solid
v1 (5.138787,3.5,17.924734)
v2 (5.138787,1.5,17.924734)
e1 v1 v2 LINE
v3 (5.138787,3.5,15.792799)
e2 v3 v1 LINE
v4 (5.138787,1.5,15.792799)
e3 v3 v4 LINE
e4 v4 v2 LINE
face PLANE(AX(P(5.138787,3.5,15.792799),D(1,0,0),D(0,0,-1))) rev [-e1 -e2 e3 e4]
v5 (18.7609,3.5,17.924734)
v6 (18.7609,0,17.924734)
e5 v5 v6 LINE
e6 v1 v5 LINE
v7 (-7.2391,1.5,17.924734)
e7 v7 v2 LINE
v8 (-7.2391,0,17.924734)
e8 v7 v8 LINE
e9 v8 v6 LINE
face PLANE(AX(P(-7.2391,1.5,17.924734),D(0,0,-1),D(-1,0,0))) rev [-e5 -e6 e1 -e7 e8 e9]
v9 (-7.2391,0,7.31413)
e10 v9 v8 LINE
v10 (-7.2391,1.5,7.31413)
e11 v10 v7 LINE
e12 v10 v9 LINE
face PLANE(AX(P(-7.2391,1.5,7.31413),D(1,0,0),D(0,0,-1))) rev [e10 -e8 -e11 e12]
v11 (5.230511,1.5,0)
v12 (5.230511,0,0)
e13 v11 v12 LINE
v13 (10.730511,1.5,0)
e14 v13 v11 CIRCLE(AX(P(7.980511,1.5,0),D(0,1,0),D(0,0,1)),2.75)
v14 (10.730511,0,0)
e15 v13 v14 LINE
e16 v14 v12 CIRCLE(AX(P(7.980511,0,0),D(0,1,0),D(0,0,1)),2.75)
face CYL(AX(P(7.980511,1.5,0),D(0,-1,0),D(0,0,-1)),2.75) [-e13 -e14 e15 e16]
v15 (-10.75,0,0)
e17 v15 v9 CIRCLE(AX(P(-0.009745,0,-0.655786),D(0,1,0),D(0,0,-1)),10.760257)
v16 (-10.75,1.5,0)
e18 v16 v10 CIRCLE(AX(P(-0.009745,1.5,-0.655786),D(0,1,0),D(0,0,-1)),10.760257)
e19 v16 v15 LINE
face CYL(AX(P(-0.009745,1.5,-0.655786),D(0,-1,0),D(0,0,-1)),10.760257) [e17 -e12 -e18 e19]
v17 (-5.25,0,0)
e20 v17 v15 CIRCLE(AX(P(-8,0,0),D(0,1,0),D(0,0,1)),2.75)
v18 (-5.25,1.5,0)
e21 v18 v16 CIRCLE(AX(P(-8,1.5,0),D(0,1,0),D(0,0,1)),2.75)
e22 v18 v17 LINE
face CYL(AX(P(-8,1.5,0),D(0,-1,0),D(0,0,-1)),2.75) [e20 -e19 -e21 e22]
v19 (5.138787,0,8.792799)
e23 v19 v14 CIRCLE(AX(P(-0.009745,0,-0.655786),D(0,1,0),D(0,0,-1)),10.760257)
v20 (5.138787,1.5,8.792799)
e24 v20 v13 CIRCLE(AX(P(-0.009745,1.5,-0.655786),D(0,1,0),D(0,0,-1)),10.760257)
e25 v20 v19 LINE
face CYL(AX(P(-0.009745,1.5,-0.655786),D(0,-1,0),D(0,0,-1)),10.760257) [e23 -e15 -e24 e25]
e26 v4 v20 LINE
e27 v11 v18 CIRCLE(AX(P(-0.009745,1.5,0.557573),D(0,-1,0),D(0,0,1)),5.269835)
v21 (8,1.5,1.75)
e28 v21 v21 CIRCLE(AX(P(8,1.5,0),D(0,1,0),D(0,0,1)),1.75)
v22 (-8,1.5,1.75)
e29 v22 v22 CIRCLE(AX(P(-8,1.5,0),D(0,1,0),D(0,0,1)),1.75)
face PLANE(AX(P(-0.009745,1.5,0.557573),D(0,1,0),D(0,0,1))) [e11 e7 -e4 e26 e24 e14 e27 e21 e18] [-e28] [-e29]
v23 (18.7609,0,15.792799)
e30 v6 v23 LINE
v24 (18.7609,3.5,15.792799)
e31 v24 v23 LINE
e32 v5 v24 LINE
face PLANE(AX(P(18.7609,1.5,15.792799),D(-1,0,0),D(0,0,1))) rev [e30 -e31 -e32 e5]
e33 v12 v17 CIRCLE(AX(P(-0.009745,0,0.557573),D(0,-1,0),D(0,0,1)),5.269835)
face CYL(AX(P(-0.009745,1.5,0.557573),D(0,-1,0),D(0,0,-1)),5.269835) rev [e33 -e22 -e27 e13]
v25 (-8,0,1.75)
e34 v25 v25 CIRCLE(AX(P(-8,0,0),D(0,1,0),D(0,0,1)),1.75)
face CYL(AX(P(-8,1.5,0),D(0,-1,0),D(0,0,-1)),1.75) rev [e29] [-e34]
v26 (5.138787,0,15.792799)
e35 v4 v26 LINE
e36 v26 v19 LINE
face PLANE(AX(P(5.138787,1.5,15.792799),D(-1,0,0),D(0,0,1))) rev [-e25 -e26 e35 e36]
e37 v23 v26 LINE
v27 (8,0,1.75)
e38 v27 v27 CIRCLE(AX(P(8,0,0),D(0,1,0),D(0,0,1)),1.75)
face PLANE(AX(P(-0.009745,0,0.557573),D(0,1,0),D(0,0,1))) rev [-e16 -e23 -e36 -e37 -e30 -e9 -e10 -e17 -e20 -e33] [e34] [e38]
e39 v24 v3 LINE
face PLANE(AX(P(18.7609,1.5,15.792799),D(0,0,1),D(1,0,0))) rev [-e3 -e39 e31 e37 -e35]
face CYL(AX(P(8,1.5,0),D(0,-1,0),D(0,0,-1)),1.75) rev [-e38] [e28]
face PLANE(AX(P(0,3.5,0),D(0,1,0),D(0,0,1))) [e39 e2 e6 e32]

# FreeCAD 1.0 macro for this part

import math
import FreeCAD as App
import Part
import Sketcher


def add_polygon(sketch, points):
    """Adds a closed chain of lines whose ends are joined by coincident constraints."""
    first, n = sketch.GeometryCount, len(points)
    for a, b in zip(points, points[1:] + points[:1]):
        sketch.addGeometry(Part.LineSegment(App.Vector(*a, 0), App.Vector(*b, 0)), False)
    for i in range(n):
        sketch.addConstraint(Sketcher.Constraint("Coincident", first + i, 2, first + (i + 1) % n, 1))

doc = App.newDocument("Part")
body = doc.addObject("PartDesign::Body", "Body")

# Sketch on XZ plane
sketch1 = doc.addObject("Sketcher::SketchObject", "Sketch")
body.addObject(sketch1)
sketch1.AttachmentSupport = (doc.XZ_Plane, [""])
sketch1.MapMode = "FlatFace"
sketch1.addGeometry([
    Part.LineSegment(App.Vector(-7.2, 7.3, 0), App.Vector(-7.2, 17.9, 0)),  # 0
    Part.LineSegment(App.Vector(-7.2, 17.9, 0), App.Vector(18.8, 17.9, 0)),  # 1
    Part.LineSegment(App.Vector(18.8, 17.9, 0), App.Vector(18.8, 15.8, 0)),  # 2
    Part.LineSegment(App.Vector(18.8, 15.8, 0), App.Vector(5.1, 15.8, 0)),  # 3
    Part.LineSegment(App.Vector(5.1, 15.8, 0), App.Vector(5.1, 8.8, 0)),  # 4
    Part.ArcOfCircle(Part.Circle(App.Vector(0, -0.7, 0), App.Vector(0, 0, 1), 10.8), math.radians(3), math.radians(61)),  # 5
    Part.ArcOfCircle(Part.Circle(App.Vector(8, 0, 0), App.Vector(0, 0, 1), 2.8), math.radians(180), math.radians(360)),  # 6
    Part.ArcOfCircle(Part.Circle(App.Vector(0, 0.6, 0), App.Vector(0, 0, 1), 5.3), math.radians(-6), math.radians(186)),  # 7
    Part.ArcOfCircle(Part.Circle(App.Vector(-8, 0, 0), App.Vector(0, 0, 1), 2.8), math.radians(180), math.radians(360)),  # 8
    Part.ArcOfCircle(Part.Circle(App.Vector(0, -0.7, 0), App.Vector(0, 0, 1), 10.8), math.radians(132), math.radians(177)),  # 9
    Part.Circle(App.Vector(-8, 0, 0), App.Vector(0, 0, 1), 1.8),  # 10
    Part.Circle(App.Vector(8, 0, 0), App.Vector(0, 0, 1), 1.8),  # 11
], False)
sketch1.addConstraint([
    Sketcher.Constraint("Coincident", 0, 2, 1, 1),
    Sketcher.Constraint("Coincident", 1, 2, 2, 1),
    Sketcher.Constraint("Coincident", 2, 2, 3, 1),
    Sketcher.Constraint("Coincident", 3, 2, 4, 1),
    Sketcher.Constraint("Coincident", 4, 2, 5, 2),
    Sketcher.Constraint("Coincident", 5, 1, 6, 2),
    Sketcher.Constraint("Coincident", 6, 1, 7, 1),
    Sketcher.Constraint("Coincident", 7, 2, 8, 2),
    Sketcher.Constraint("Coincident", 8, 1, 9, 2),
    Sketcher.Constraint("Coincident", 9, 1, 0, 1),
    Sketcher.Constraint("Vertical", 0),
    Sketcher.Constraint("Horizontal", 1),
    Sketcher.Constraint("Vertical", 2),
    Sketcher.Constraint("Horizontal", 3),
    Sketcher.Constraint("Vertical", 4),
    Sketcher.Constraint("Coincident", 9, 3, 5, 3),
    Sketcher.Constraint("Coincident", 10, 3, 8, 3),
    Sketcher.Constraint("Equal", 6, 8),
    Sketcher.Constraint("Equal", 5, 9),
    Sketcher.Constraint("Equal", 10, 11),
    Sketcher.Constraint("Symmetric", 8, 3, 11, 3, -1, 1),
    Sketcher.Constraint("PointOnObject", 6, 3, -1),
    Sketcher.Constraint("PointOnObject", 8, 3, -1),
    Sketcher.Constraint("PointOnObject", 5, 1, -1),
    Sketcher.Constraint("PointOnObject", 6, 1, -1),
    Sketcher.Constraint("PointOnObject", 7, 2, -1),
    Sketcher.Constraint("PointOnObject", 8, 1, -1),
    Sketcher.Constraint("Diameter", 10, 3.5),
    Sketcher.Constraint("DistanceX", 1, 1, 1, 2, 26.0),
    Sketcher.Constraint("DistanceY", 4, 2, 4, 1, 7.0),
    Sketcher.Constraint("Radius", 6, 2.75),
    Sketcher.Constraint("DistanceX", 8, 3, -1, 1, 8.0),
    Sketcher.Constraint("Radius", 5, 10.760257),
    Sketcher.Constraint("Radius", 7, 5.269835),
    Sketcher.Constraint("DistanceX", 0, 2, -1, 1, 7.2391),
    Sketcher.Constraint("DistanceY", -1, 1, 2, 2, 15.792799),
    Sketcher.Constraint("DistanceX", 3, 2, 3, 1, 13.622113),
    Sketcher.Constraint("DistanceY", 0, 1, 0, 2, 10.610604),
])
pad1 = doc.addObject("PartDesign::Pad", "Pad")
body.addObject(pad1)
pad1.Profile = sketch1
pad1.Length = 1.5
pad1.Reversed = True

# Sketch on XZ plane
sketch2 = doc.addObject("Sketcher::SketchObject", "Sketch001")
body.addObject(sketch2)
sketch2.AttachmentSupport = (doc.XZ_Plane, [""])
sketch2.MapMode = "FlatFace"
sketch2.AttachmentOffset = App.Placement(App.Vector(0, 0, -1.5), App.Rotation())
add_polygon(sketch2, [(5.1, 15.8), (5.1, 17.9), (18.8, 17.9), (18.8, 15.8)])  # lines 0-3
sketch2.addConstraint([
    Sketcher.Constraint("Vertical", 0),
    Sketcher.Constraint("Horizontal", 1),
    Sketcher.Constraint("Vertical", 2),
    Sketcher.Constraint("Horizontal", 3),
    Sketcher.Constraint("DistanceX", -1, 1, 1, 2, 18.7609),
    Sketcher.Constraint("DistanceY", -1, 1, 2, 2, 15.792799),
    Sketcher.Constraint("DistanceX", 1, 1, 1, 2, 13.622113),
    Sketcher.Constraint("DistanceY", 0, 1, 0, 2, 2.131935),
])
pad2 = doc.addObject("PartDesign::Pad", "Pad001")
body.addObject(pad2)
pad2.Profile = sketch2
pad2.Length = 2
pad2.Reversed = True

doc.recompute()
